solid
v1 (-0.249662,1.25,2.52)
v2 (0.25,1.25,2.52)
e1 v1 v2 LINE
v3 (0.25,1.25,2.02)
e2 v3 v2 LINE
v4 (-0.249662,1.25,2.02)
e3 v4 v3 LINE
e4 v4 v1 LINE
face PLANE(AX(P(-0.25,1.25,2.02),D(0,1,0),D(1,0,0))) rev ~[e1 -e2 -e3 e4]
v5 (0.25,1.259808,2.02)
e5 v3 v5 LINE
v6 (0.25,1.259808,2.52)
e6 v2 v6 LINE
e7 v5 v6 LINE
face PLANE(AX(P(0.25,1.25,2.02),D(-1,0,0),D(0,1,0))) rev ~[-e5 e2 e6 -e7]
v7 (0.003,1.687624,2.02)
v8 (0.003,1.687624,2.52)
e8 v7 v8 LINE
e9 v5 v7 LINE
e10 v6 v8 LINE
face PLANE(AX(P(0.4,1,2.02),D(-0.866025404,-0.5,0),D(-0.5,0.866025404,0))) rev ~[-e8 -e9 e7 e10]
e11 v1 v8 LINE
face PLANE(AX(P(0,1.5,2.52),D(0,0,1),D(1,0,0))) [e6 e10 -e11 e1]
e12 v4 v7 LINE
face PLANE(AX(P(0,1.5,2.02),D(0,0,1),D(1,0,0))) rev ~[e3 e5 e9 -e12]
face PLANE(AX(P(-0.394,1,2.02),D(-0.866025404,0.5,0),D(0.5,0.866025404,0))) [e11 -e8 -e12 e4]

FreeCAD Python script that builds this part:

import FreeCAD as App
import Part
import Sketcher
Q = App.Units.Quantity


def add_polygon(sketch, points):
    """Adds a closed chain of lines whose ends are joined by coincident constraints."""
    first, n = sketch.GeometryCount, len(points)
    for a, b in zip(points, points[1:] + points[:1]):
        sketch.addGeometry(Part.LineSegment(App.Vector(*a, 0), App.Vector(*b, 0)), False)
    for i in range(n):
        sketch.addConstraint(Sketcher.Constraint("Coincident", first + i, 2, first + (i + 1) % n, 1))

doc = App.newDocument("Part")
body = doc.addObject("PartDesign::Body", "Body")

# Sketch on XY plane
sketch1 = doc.addObject("Sketcher::SketchObject", "Sketch")
body.addObject(sketch1)
sketch1.AttachmentSupport = (doc.XY_Plane, [""])
sketch1.MapMode = "FlatFace"
add_polygon(sketch1, [(0, 1), (0, 0), (1, 0), (1, 1)])  # lines 0-3
sketch1.addConstraint([
    Sketcher.Constraint("Vertical", 0),
    Sketcher.Constraint("Horizontal", 1),
    Sketcher.Constraint("Vertical", 2),
    Sketcher.Constraint("Horizontal", 3),
    Sketcher.Constraint("Coincident", 0, 2, -1, 1),
    Sketcher.Constraint("Equal", 3, 0),
    Sketcher.Constraint("DistanceX", 1, 1, 1, 2, Q("1 mm")),
])
pad1 = doc.addObject("PartDesign::Pad", "Pad")
body.addObject(pad1)
pad1.Profile = sketch1
pad1.Length = 0.5
body2 = doc.addObject("PartDesign::Body", "Body001")
doc.recompute()

body.Placement = App.Placement(App.Vector(0.4, 1, 2.02), App.Rotation(App.Vector(0, 0, 1), 30))
boolean = doc.addObject("PartDesign::Boolean", "Boolean")
body2.addObject(boolean)
boolean.Type = "Fuse"
boolean.addObjects([body])
body3 = doc.addObject("PartDesign::Body", "Body002")

# Sketch on XY plane
sketch2 = doc.addObject("Sketcher::SketchObject", "Sketch001")
body3.addObject(sketch2)
sketch2.AttachmentSupport = (doc.getObject("XY_Plane002"), [""])
sketch2.MapMode = "FlatFace"
add_polygon(sketch2, [(0, 1), (0, 0), (1, 0), (1, 1)])  # lines 0-3
sketch2.addConstraint([
    Sketcher.Constraint("Vertical", 0),
    Sketcher.Constraint("Horizontal", 1),
    Sketcher.Constraint("Vertical", 2),
    Sketcher.Constraint("Horizontal", 3),
    Sketcher.Constraint("Coincident", 0, 2, -1, 1),
    Sketcher.Constraint("Equal", 3, 0),
    Sketcher.Constraint("DistanceX", 1, 1, 1, 2, Q("1 mm")),
])
pad2 = doc.addObject("PartDesign::Pad", "Pad001")
body3.addObject(pad2)
pad2.Profile = sketch2
pad2.Length = 0.5
body4 = doc.addObject("PartDesign::Body", "Body003")
doc.recompute()

body3.Placement = App.Placement(App.Vector(-0.394, 1, 2.02), App.Rotation(App.Vector(0, 0, 1), 60))
boolean2 = doc.addObject("PartDesign::Boolean", "Boolean001")
body4.addObject(boolean2)
boolean2.Type = "Fuse"
boolean2.addObjects([body3])
body5 = doc.addObject("PartDesign::Body", "Body004")

# Sketch on XY plane
sketch3 = doc.addObject("Sketcher::SketchObject", "Sketch002")
body5.addObject(sketch3)
sketch3.AttachmentSupport = (doc.getObject("XY_Plane004"), [""])
sketch3.MapMode = "FlatFace"
sketch3.AttachmentOffset = App.Placement(App.Vector(0, 0, 2.02), App.Rotation())
add_polygon(sketch3, [(-0.2, 1.8), (-0.2, 1.2), (0.2, 1.2), (0.2, 1.8)])  # lines 0-3
sketch3.addConstraint([
    Sketcher.Constraint("Vertical", 0),
    Sketcher.Constraint("Horizontal", 1),
    Sketcher.Constraint("Vertical", 2),
    Sketcher.Constraint("Horizontal", 3),
    Sketcher.Constraint("Equal", 3, 0),
    Sketcher.Constraint("DistanceX", 1, 1, 1, 2, Q("0.5 mm")),
    Sketcher.Constraint("DistanceX", 0, 2, -1, 1, Q("0.25 mm")),
    Sketcher.Constraint("DistanceY", -1, 1, 0, 2, Q("1.25 mm")),
])
pad3 = doc.addObject("PartDesign::Pad", "Pad002")
body5.addObject(pad3)
pad3.Profile = sketch3
pad3.Length = 0.5
doc.recompute()

boolean3 = doc.addObject("PartDesign::Boolean", "Boolean002")
body5.addObject(boolean3)
boolean3.Type = "Cut"
boolean3.addObjects([body4])
doc.recompute()

boolean4 = doc.addObject("PartDesign::Boolean", "Boolean003")
body5.addObject(boolean4)
boolean4.Type = "Cut"
boolean4.addObjects([body2])

doc.recompute()
